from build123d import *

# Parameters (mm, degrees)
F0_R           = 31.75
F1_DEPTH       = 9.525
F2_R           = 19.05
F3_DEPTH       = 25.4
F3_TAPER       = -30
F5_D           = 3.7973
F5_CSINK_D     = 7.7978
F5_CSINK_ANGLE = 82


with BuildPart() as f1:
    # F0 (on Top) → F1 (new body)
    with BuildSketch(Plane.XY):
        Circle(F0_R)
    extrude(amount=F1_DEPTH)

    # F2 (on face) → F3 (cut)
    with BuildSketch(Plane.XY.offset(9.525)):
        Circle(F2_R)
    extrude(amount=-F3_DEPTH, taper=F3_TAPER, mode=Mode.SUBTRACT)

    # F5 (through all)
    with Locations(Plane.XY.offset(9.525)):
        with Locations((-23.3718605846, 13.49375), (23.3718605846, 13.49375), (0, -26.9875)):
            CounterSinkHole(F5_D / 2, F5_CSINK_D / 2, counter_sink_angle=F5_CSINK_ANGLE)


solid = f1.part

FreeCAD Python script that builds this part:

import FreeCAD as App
import Part
import Sketcher

V = App.Vector
Q = App.Units.Quantity

doc = App.newDocument("Part")
body = doc.addObject("PartDesign::Body", "Body")

# Sketch on XY plane
sketch1 = doc.addObject("Sketcher::SketchObject", "Sketch")
body.addObject(sketch1)
sketch1.AttachmentSupport = (doc.XY_Plane, [""])
sketch1.MapMode = "FlatFace"
sketch1.addGeometry(Part.Circle(V(0, 0, 0), V(0, 0, 1), 32), False)
sketch1.addConstraint(Sketcher.Constraint("Coincident", 0, 3, -1, 1))
sketch1.addConstraint(Sketcher.Constraint("Diameter", 0, Q("2.5 in")))
pad1 = doc.addObject("PartDesign::Pad", "Pad")
body.addObject(pad1)
pad1.Profile = sketch1
pad1.Length = Q("0.375 in")

# Sketch on XY plane
sketch2 = doc.addObject("Sketcher::SketchObject", "Sketch001")
body.addObject(sketch2)
sketch2.AttachmentSupport = (doc.XY_Plane, [""])
sketch2.MapMode = "FlatFace"
sketch2.AttachmentOffset = App.Placement(V(0, 0, 0.375 * 25.4), App.Rotation())
sketch2.addGeometry(Part.Circle(V(0, 0, 0), V(0, 0, 1), 19), False)
sketch2.addConstraint(Sketcher.Constraint("Coincident", 0, 3, -1, 1))
sketch2.addConstraint(Sketcher.Constraint("Diameter", 0, Q("1.5 in")))
pocket1 = doc.addObject("PartDesign::Pocket", "Pocket")
body.addObject(pocket1)
pocket1.Profile = sketch2
pocket1.Length = Q("1 in")
pocket1.TaperAngle = 30

# Sketch on XY plane
sketch3 = doc.addObject("Sketcher::SketchObject", "Sketch002")
body.addObject(sketch3)
sketch3.AttachmentSupport = (doc.XY_Plane, [""])
sketch3.MapMode = "FlatFace"
sketch3.AttachmentOffset = App.Placement(V(0, 0, 0.375 * 25.4), App.Rotation())
sketch3.addGeometry(Part.Circle(V(-23.4, 13.5, 0), V(0, 0, 1), 1.9), False)
sketch3.addGeometry(Part.Circle(V(23.4, 13.5, 0), V(0, 0, 1), 1.9), False)
sketch3.addGeometry(Part.Circle(V(0, -27, 0), V(0, 0, 1), 1.9), False)
sketch3.addConstraint(Sketcher.Constraint("Equal", 0, 1))
sketch3.addConstraint(Sketcher.Constraint("Equal", 1, 2))
sketch3.addConstraint(Sketcher.Constraint("Symmetric", 0, 3, 1, 3, -2))
sketch3.addConstraint(Sketcher.Constraint("PointOnObject", 2, 3, -2))
sketch3.addConstraint(Sketcher.Constraint("Diameter", 0, Q("0.1495 in")))
sketch3.addConstraint(Sketcher.Constraint("DistanceY", -1, 1, 0, 3, Q("0.53125 in")))
sketch3.addConstraint(Sketcher.Constraint("DistanceY", 2, 3, -1, 1, Q("1.0625 in")))
sketch3.addConstraint(Sketcher.Constraint("DistanceX", 0, 3, -1, 1, 23.371861))
doc.recompute()
hole = doc.addObject("PartDesign::Hole", "Hole")
body.addObject(hole)
hole.Profile = sketch3
hole.ThreadType = "None"
hole.Diameter = Q("0.1495 in")
hole.DepthType = "ThroughAll"
hole.HoleCutType = "Countersink"
hole.HoleCutDiameter = Q("0.307 in")
hole.HoleCutCountersinkAngle = 82

doc.recompute()
